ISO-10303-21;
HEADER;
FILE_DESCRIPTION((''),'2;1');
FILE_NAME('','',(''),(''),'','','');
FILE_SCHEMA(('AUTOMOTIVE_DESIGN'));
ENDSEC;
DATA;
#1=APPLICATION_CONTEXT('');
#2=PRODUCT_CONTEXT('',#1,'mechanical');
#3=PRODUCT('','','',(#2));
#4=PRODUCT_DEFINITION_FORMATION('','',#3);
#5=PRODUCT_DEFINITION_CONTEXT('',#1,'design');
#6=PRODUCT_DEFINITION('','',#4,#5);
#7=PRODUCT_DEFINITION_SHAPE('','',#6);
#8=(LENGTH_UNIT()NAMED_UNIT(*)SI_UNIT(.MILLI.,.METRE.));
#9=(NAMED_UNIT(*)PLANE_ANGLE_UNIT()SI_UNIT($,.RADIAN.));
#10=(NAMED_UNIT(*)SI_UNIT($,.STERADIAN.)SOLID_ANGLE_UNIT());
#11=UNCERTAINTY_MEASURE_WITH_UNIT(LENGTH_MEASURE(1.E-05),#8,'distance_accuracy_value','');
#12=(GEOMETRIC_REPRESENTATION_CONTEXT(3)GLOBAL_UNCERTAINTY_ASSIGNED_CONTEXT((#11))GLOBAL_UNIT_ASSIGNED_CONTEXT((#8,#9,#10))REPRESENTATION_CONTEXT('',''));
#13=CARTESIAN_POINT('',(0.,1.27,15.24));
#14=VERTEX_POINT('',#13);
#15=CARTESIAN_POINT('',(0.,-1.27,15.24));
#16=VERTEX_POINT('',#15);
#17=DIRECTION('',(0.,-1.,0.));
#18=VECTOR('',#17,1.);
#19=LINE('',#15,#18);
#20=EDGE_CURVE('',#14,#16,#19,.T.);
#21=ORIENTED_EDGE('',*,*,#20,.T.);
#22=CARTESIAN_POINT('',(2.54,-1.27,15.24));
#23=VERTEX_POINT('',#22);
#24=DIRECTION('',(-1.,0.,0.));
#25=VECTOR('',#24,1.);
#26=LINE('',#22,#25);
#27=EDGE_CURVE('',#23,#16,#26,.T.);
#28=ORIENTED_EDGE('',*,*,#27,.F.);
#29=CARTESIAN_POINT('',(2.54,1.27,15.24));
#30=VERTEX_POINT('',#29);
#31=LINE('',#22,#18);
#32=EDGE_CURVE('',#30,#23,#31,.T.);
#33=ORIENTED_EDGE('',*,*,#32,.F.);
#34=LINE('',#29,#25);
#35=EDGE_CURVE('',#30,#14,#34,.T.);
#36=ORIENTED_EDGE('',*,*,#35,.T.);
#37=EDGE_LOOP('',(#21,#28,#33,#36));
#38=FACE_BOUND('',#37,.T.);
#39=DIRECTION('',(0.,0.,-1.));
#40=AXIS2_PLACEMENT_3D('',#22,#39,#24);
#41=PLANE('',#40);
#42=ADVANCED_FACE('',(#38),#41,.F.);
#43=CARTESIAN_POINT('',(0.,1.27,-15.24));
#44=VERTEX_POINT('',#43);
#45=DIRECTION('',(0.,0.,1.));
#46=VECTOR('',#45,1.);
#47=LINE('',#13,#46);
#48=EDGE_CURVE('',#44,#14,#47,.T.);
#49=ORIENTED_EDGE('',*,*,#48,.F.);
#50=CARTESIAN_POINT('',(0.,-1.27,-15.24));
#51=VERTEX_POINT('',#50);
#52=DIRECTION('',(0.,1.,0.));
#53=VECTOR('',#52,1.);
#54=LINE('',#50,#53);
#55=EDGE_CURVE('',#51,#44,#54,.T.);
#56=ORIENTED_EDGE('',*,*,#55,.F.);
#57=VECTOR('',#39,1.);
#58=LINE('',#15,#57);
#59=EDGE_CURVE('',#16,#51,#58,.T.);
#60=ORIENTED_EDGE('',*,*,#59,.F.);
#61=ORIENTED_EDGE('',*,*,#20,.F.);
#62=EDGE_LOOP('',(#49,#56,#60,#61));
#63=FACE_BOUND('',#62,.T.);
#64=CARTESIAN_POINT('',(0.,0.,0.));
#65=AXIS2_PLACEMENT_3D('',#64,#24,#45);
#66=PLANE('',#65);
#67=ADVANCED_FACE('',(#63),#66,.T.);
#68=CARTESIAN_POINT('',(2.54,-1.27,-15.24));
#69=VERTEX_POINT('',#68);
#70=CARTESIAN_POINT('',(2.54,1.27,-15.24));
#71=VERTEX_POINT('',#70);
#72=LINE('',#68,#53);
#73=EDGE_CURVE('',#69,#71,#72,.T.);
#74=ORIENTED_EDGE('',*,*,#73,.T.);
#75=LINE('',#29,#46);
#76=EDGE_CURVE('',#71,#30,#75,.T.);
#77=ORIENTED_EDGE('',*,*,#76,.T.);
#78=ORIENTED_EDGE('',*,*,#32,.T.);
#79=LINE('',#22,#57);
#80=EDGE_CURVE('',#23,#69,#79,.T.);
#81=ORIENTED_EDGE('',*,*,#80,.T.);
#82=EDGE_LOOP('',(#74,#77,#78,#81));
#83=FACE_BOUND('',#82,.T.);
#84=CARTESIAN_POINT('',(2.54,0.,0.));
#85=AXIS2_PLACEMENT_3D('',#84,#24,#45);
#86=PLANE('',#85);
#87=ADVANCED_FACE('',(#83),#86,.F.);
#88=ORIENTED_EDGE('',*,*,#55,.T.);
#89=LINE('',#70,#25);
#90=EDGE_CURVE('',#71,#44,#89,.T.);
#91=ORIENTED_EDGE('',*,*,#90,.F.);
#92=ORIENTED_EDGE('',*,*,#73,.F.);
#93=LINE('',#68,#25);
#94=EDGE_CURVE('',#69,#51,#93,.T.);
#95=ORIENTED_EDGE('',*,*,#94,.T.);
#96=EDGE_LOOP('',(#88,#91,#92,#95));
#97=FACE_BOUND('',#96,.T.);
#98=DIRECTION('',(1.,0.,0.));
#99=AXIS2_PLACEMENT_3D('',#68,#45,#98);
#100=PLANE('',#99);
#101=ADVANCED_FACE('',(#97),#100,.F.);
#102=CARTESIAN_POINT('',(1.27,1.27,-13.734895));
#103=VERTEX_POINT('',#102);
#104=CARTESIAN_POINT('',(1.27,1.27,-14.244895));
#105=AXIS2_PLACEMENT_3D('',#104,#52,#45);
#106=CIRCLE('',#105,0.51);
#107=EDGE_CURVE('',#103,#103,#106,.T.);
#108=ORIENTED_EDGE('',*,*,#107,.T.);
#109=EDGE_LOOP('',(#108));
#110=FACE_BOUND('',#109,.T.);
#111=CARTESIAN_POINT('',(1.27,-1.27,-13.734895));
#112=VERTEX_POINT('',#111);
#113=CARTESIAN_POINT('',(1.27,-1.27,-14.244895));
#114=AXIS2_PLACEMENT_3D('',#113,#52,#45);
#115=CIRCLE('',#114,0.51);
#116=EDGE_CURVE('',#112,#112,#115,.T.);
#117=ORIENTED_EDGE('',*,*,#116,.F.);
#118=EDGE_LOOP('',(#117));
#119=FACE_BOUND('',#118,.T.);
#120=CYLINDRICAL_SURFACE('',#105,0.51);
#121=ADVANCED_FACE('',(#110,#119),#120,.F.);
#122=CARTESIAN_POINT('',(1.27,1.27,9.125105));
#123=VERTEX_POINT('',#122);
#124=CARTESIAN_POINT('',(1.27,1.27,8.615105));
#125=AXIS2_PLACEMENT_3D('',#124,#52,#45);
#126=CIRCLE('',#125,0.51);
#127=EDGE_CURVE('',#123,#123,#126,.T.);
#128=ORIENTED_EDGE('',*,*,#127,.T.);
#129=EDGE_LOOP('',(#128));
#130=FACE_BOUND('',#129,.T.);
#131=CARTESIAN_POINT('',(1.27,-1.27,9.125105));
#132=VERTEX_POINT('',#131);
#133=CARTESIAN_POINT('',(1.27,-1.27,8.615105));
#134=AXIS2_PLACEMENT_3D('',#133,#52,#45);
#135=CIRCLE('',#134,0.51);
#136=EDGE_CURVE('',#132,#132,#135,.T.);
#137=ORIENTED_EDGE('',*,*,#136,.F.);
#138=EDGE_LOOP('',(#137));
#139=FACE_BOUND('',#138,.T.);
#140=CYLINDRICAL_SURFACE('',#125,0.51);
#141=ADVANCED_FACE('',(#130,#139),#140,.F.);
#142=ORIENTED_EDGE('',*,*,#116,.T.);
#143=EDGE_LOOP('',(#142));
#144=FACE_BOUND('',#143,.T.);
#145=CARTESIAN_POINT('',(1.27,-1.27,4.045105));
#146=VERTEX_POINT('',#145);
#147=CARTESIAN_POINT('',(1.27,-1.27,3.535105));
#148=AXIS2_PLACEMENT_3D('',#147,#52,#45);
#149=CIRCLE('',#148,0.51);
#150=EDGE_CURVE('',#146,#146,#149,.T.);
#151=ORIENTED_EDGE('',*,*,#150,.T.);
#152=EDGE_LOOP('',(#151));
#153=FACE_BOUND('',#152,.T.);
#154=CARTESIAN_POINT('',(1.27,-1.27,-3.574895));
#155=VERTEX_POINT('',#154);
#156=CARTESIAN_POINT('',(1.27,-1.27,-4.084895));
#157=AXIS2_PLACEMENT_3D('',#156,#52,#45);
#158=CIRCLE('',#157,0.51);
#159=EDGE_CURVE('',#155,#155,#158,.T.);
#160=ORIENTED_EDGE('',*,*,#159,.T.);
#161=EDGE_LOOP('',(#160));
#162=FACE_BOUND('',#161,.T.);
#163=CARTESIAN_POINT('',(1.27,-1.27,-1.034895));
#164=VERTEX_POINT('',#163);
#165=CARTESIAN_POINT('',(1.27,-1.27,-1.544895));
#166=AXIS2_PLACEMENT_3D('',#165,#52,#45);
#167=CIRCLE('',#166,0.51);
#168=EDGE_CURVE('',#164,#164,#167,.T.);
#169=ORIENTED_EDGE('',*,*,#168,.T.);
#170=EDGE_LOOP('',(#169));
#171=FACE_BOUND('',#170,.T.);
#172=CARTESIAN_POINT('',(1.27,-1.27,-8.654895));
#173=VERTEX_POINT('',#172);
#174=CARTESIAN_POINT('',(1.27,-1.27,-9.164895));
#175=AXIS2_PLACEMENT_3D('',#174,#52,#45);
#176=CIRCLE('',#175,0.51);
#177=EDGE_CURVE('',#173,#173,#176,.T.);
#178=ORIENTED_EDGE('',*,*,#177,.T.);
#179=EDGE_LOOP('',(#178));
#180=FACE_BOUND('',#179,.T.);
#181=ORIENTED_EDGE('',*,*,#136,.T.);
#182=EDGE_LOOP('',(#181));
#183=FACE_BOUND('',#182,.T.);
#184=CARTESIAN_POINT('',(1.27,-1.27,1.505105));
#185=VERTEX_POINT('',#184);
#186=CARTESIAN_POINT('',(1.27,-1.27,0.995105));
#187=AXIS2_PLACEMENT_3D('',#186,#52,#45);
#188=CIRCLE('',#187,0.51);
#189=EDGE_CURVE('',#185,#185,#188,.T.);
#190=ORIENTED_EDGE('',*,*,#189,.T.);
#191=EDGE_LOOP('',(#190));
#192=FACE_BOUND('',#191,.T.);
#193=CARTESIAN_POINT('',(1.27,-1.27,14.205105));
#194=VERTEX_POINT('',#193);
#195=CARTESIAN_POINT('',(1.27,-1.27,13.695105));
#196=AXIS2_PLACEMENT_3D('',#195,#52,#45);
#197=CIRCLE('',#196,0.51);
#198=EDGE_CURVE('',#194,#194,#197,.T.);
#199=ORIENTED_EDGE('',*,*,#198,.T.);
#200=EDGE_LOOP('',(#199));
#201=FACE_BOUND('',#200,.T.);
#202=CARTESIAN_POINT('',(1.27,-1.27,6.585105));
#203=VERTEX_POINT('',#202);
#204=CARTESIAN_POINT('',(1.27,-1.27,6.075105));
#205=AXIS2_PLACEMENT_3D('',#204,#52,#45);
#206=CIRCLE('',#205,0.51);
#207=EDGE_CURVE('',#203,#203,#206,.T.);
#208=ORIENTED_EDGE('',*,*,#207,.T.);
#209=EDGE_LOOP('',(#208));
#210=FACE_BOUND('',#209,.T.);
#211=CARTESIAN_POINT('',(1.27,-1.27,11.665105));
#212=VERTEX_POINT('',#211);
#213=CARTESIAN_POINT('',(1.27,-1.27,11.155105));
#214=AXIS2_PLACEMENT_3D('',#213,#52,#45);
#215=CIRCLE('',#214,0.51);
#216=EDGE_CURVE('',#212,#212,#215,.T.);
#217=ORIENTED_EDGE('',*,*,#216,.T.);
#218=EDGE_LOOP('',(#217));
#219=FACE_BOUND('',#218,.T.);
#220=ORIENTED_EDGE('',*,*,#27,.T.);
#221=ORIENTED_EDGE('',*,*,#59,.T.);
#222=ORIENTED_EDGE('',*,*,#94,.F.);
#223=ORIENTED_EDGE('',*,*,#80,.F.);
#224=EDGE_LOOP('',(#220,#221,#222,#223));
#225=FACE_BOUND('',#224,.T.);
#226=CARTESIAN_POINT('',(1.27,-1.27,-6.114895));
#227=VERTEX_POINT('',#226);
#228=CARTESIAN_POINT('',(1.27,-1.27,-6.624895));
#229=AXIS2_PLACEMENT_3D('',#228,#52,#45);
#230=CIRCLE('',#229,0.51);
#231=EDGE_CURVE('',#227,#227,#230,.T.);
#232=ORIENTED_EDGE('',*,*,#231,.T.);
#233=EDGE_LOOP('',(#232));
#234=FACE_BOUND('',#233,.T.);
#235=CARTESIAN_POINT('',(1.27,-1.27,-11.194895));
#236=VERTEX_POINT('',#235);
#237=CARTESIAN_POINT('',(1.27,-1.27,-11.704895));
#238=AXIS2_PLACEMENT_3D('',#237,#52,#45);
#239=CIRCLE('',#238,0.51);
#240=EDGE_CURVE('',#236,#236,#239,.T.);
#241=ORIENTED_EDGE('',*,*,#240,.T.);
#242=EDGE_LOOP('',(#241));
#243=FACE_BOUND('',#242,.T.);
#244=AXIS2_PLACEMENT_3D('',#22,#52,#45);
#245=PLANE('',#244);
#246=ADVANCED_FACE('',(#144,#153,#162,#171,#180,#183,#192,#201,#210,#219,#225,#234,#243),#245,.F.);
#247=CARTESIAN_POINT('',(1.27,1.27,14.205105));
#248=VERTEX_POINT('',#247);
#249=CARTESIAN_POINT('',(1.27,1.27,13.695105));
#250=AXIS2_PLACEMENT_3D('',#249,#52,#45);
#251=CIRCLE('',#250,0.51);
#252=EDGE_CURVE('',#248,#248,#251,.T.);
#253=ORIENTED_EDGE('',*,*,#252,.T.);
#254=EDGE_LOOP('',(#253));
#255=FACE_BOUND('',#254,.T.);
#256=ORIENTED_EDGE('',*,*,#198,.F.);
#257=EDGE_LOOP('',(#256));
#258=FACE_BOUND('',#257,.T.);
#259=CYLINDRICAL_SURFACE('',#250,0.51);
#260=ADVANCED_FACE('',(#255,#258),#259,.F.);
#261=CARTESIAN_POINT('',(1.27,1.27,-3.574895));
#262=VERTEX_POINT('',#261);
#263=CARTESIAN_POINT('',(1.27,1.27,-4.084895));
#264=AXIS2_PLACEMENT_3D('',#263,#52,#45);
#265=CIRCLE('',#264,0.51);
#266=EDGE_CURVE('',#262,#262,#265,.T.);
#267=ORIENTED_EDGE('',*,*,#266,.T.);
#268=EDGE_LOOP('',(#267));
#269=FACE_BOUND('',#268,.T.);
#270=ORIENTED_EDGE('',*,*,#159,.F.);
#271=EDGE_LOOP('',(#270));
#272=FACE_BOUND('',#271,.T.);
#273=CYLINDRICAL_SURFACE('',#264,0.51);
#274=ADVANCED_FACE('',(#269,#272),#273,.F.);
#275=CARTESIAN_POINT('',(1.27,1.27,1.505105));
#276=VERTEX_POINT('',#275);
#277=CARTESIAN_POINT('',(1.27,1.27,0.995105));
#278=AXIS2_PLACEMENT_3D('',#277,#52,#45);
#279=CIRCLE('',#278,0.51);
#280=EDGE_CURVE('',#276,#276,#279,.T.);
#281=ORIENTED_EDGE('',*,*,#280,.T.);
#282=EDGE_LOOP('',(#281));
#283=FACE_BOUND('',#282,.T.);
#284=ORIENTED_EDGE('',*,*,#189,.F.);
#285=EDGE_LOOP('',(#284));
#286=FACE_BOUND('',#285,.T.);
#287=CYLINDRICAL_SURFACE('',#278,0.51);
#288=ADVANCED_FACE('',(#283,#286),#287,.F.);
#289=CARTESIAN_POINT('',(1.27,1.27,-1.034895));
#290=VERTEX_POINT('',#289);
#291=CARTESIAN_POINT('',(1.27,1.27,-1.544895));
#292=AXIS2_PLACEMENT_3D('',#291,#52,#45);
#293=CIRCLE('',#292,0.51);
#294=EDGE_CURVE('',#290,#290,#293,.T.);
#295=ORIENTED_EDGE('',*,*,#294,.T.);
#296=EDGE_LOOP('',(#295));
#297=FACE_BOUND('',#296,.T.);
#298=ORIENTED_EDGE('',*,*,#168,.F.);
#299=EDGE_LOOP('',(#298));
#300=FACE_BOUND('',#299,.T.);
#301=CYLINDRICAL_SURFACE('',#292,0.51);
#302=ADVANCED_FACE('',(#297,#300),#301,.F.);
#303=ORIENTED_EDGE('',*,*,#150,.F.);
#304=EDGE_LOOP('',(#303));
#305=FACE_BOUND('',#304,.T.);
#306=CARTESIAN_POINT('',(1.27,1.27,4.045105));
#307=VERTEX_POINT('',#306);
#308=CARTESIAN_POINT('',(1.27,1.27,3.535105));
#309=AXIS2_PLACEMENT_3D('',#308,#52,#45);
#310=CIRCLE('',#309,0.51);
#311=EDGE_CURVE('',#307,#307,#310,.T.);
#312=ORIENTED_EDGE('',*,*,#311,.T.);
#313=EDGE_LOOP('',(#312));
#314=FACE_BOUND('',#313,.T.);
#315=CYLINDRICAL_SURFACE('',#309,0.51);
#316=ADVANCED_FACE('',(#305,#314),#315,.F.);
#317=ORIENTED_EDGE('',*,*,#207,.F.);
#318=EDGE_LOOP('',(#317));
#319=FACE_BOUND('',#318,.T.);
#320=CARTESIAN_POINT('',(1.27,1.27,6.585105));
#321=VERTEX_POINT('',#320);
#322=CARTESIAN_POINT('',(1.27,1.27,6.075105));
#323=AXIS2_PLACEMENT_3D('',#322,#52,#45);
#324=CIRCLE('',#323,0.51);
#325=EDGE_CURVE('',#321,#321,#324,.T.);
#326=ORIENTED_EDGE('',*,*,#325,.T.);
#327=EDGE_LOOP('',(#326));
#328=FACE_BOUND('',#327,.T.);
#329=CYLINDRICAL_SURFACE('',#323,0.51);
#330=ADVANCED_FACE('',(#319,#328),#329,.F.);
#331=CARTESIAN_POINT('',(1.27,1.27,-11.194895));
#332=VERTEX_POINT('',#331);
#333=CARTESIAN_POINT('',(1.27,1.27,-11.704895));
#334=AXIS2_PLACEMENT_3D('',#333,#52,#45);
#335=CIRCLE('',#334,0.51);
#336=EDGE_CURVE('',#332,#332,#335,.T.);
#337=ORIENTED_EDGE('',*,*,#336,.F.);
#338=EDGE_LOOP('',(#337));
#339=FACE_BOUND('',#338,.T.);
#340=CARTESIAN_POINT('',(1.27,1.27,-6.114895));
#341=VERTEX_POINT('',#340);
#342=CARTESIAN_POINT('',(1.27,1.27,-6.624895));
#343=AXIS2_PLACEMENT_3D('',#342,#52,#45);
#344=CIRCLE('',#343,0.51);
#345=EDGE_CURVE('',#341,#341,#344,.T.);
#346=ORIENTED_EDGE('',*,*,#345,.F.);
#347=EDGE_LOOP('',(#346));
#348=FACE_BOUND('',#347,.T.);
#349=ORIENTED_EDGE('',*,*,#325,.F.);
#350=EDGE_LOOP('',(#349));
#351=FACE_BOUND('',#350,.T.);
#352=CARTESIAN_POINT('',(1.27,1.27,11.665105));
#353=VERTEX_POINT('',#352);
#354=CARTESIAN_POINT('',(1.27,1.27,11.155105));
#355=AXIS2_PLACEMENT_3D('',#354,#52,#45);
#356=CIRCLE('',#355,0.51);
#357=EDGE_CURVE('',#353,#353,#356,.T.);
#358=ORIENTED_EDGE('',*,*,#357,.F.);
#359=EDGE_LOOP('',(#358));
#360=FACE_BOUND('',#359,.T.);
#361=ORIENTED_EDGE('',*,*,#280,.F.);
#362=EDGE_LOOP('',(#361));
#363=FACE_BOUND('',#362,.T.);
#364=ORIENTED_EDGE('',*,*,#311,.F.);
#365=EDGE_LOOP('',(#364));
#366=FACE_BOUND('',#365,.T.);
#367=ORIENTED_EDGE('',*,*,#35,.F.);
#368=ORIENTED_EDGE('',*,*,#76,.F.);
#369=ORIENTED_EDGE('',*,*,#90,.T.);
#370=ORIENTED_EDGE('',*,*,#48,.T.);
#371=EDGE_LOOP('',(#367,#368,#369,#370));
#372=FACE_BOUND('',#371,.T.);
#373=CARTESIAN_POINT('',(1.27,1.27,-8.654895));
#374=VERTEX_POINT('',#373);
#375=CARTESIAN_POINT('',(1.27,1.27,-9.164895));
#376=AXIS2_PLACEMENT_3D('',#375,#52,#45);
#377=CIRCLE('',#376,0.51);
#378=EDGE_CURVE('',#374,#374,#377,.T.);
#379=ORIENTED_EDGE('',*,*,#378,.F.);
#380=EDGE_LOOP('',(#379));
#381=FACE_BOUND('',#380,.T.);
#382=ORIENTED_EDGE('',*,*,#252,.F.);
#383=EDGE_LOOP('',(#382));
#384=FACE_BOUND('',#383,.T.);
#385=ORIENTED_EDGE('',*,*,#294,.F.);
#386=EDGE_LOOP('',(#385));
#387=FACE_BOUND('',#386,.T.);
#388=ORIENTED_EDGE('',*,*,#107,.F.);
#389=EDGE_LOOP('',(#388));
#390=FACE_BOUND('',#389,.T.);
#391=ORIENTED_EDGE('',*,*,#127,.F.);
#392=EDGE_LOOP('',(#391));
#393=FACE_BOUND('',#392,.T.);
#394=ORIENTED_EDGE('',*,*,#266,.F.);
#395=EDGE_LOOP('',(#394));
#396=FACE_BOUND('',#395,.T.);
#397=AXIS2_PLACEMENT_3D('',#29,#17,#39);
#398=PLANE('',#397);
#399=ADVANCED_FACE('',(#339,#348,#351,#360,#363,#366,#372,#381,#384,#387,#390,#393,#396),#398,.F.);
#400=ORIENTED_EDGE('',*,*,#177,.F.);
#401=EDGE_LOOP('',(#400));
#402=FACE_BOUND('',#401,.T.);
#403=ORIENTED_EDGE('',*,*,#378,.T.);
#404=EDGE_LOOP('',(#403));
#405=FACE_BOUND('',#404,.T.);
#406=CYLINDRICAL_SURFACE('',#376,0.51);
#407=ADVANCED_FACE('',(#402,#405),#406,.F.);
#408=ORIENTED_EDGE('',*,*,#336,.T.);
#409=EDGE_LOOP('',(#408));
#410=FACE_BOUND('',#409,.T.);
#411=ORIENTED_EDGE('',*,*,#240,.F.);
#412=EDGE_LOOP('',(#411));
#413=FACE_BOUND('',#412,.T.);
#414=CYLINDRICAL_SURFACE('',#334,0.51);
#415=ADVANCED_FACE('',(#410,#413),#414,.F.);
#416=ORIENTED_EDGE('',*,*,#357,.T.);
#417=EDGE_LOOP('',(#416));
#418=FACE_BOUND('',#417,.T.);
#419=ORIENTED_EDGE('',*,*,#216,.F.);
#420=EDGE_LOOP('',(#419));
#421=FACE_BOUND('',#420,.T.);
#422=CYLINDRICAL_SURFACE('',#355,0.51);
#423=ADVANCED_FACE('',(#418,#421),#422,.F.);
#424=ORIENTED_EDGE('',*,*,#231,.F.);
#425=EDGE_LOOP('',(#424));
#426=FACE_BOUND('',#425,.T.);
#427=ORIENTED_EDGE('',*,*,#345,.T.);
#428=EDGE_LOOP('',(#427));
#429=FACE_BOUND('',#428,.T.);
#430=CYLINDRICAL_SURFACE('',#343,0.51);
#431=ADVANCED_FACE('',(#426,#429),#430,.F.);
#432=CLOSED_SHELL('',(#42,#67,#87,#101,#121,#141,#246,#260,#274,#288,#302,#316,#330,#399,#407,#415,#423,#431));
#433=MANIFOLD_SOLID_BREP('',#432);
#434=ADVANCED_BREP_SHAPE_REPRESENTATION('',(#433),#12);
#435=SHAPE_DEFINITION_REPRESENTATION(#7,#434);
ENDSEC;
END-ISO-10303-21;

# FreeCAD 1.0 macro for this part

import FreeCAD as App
import Part
import Sketcher
from FreeCAD import Vector
Q = App.Units.Quantity

doc = App.newDocument("Part")
body = doc.addObject("PartDesign::Body", "Body")

# Sketch on YZ plane
sketch1 = body.newObject("Sketcher::SketchObject", "Sketch")
sketch1.AttachmentSupport = (doc.getObject("YZ_Plane"), [""])
sketch1.MapMode = "FlatFace"
sketch1.addGeometry([
    Part.LineSegment(Vector(1.3, 15.2, 0), Vector(-1.3, 15.2, 0)),
    Part.LineSegment(Vector(-1.3, 15.2, 0), Vector(-1.3, -15.2, 0)),
    Part.LineSegment(Vector(-1.3, -15.2, 0), Vector(1.3, -15.2, 0)),
    Part.LineSegment(Vector(1.3, -15.2, 0), Vector(1.3, 15.2, 0)),
], False)
sketch1.addConstraint([
    Sketcher.Constraint("Coincident", 0, 2, 1, 1),
    Sketcher.Constraint("Coincident", 1, 2, 2, 1),
    Sketcher.Constraint("Coincident", 2, 2, 3, 1),
    Sketcher.Constraint("Coincident", 3, 2, 0, 1),
    Sketcher.Constraint("Horizontal", 0),
    Sketcher.Constraint("Vertical", 1),
    Sketcher.Constraint("Horizontal", 2),
    Sketcher.Constraint("Vertical", 3),
    Sketcher.Constraint("Symmetric", 0, 2, 2, 2, -1, 1),
    Sketcher.Constraint("DistanceX", 0, 2, 0, 1, Q("0.1 in")),
    Sketcher.Constraint("DistanceY", 1, 2, 1, 1, Q("1.2 in")),
])
pad1 = body.newObject("PartDesign::Pad", "Pad")
pad1.Profile = sketch1
pad1.Length = Q("0.1 in")

# Sketch on XZ plane
sketch2 = body.newObject("Sketcher::SketchObject", "Sketch001")
sketch2.AttachmentSupport = (doc.getObject("XZ_Plane"), [""])
sketch2.MapMode = "FlatFace"
sketch2.AttachmentOffset = App.Placement(Vector(0, 0, -0.05 * 25.4), App.Rotation())
sketch2.addGeometry(Part.Circle(Vector(1.3, 13.7, 0), Vector(0, 0, 1), 0.5), False)
sketch2.addConstraint([
    Sketcher.Constraint("Diameter", 0, 1.02),
    Sketcher.Constraint("DistanceX", -1, 1, 0, 3, Q("0.05 in")),
    Sketcher.Constraint("DistanceY", -1, 1, 0, 3, 13.695105),
])
doc.recompute()
hole = body.newObject("PartDesign::Hole", "Hole")
hole.Profile = sketch2
hole.ThreadType = "None"
hole.Diameter = 1.02
hole.DepthType = "ThroughAll"
hole.Reversed = True
doc.recompute()

linearpattern = body.newObject("PartDesign::LinearPattern", "LinearPattern")
linearpattern.Originals = [hole]
linearpattern.Direction = (doc.getObject("Z_Axis"), [""])
linearpattern.Mode = "offset"
linearpattern.Offset = Q("0.1 in")
linearpattern.Occurrences = 12
linearpattern.Reversed = True
body.Tip = linearpattern

doc.recompute()
